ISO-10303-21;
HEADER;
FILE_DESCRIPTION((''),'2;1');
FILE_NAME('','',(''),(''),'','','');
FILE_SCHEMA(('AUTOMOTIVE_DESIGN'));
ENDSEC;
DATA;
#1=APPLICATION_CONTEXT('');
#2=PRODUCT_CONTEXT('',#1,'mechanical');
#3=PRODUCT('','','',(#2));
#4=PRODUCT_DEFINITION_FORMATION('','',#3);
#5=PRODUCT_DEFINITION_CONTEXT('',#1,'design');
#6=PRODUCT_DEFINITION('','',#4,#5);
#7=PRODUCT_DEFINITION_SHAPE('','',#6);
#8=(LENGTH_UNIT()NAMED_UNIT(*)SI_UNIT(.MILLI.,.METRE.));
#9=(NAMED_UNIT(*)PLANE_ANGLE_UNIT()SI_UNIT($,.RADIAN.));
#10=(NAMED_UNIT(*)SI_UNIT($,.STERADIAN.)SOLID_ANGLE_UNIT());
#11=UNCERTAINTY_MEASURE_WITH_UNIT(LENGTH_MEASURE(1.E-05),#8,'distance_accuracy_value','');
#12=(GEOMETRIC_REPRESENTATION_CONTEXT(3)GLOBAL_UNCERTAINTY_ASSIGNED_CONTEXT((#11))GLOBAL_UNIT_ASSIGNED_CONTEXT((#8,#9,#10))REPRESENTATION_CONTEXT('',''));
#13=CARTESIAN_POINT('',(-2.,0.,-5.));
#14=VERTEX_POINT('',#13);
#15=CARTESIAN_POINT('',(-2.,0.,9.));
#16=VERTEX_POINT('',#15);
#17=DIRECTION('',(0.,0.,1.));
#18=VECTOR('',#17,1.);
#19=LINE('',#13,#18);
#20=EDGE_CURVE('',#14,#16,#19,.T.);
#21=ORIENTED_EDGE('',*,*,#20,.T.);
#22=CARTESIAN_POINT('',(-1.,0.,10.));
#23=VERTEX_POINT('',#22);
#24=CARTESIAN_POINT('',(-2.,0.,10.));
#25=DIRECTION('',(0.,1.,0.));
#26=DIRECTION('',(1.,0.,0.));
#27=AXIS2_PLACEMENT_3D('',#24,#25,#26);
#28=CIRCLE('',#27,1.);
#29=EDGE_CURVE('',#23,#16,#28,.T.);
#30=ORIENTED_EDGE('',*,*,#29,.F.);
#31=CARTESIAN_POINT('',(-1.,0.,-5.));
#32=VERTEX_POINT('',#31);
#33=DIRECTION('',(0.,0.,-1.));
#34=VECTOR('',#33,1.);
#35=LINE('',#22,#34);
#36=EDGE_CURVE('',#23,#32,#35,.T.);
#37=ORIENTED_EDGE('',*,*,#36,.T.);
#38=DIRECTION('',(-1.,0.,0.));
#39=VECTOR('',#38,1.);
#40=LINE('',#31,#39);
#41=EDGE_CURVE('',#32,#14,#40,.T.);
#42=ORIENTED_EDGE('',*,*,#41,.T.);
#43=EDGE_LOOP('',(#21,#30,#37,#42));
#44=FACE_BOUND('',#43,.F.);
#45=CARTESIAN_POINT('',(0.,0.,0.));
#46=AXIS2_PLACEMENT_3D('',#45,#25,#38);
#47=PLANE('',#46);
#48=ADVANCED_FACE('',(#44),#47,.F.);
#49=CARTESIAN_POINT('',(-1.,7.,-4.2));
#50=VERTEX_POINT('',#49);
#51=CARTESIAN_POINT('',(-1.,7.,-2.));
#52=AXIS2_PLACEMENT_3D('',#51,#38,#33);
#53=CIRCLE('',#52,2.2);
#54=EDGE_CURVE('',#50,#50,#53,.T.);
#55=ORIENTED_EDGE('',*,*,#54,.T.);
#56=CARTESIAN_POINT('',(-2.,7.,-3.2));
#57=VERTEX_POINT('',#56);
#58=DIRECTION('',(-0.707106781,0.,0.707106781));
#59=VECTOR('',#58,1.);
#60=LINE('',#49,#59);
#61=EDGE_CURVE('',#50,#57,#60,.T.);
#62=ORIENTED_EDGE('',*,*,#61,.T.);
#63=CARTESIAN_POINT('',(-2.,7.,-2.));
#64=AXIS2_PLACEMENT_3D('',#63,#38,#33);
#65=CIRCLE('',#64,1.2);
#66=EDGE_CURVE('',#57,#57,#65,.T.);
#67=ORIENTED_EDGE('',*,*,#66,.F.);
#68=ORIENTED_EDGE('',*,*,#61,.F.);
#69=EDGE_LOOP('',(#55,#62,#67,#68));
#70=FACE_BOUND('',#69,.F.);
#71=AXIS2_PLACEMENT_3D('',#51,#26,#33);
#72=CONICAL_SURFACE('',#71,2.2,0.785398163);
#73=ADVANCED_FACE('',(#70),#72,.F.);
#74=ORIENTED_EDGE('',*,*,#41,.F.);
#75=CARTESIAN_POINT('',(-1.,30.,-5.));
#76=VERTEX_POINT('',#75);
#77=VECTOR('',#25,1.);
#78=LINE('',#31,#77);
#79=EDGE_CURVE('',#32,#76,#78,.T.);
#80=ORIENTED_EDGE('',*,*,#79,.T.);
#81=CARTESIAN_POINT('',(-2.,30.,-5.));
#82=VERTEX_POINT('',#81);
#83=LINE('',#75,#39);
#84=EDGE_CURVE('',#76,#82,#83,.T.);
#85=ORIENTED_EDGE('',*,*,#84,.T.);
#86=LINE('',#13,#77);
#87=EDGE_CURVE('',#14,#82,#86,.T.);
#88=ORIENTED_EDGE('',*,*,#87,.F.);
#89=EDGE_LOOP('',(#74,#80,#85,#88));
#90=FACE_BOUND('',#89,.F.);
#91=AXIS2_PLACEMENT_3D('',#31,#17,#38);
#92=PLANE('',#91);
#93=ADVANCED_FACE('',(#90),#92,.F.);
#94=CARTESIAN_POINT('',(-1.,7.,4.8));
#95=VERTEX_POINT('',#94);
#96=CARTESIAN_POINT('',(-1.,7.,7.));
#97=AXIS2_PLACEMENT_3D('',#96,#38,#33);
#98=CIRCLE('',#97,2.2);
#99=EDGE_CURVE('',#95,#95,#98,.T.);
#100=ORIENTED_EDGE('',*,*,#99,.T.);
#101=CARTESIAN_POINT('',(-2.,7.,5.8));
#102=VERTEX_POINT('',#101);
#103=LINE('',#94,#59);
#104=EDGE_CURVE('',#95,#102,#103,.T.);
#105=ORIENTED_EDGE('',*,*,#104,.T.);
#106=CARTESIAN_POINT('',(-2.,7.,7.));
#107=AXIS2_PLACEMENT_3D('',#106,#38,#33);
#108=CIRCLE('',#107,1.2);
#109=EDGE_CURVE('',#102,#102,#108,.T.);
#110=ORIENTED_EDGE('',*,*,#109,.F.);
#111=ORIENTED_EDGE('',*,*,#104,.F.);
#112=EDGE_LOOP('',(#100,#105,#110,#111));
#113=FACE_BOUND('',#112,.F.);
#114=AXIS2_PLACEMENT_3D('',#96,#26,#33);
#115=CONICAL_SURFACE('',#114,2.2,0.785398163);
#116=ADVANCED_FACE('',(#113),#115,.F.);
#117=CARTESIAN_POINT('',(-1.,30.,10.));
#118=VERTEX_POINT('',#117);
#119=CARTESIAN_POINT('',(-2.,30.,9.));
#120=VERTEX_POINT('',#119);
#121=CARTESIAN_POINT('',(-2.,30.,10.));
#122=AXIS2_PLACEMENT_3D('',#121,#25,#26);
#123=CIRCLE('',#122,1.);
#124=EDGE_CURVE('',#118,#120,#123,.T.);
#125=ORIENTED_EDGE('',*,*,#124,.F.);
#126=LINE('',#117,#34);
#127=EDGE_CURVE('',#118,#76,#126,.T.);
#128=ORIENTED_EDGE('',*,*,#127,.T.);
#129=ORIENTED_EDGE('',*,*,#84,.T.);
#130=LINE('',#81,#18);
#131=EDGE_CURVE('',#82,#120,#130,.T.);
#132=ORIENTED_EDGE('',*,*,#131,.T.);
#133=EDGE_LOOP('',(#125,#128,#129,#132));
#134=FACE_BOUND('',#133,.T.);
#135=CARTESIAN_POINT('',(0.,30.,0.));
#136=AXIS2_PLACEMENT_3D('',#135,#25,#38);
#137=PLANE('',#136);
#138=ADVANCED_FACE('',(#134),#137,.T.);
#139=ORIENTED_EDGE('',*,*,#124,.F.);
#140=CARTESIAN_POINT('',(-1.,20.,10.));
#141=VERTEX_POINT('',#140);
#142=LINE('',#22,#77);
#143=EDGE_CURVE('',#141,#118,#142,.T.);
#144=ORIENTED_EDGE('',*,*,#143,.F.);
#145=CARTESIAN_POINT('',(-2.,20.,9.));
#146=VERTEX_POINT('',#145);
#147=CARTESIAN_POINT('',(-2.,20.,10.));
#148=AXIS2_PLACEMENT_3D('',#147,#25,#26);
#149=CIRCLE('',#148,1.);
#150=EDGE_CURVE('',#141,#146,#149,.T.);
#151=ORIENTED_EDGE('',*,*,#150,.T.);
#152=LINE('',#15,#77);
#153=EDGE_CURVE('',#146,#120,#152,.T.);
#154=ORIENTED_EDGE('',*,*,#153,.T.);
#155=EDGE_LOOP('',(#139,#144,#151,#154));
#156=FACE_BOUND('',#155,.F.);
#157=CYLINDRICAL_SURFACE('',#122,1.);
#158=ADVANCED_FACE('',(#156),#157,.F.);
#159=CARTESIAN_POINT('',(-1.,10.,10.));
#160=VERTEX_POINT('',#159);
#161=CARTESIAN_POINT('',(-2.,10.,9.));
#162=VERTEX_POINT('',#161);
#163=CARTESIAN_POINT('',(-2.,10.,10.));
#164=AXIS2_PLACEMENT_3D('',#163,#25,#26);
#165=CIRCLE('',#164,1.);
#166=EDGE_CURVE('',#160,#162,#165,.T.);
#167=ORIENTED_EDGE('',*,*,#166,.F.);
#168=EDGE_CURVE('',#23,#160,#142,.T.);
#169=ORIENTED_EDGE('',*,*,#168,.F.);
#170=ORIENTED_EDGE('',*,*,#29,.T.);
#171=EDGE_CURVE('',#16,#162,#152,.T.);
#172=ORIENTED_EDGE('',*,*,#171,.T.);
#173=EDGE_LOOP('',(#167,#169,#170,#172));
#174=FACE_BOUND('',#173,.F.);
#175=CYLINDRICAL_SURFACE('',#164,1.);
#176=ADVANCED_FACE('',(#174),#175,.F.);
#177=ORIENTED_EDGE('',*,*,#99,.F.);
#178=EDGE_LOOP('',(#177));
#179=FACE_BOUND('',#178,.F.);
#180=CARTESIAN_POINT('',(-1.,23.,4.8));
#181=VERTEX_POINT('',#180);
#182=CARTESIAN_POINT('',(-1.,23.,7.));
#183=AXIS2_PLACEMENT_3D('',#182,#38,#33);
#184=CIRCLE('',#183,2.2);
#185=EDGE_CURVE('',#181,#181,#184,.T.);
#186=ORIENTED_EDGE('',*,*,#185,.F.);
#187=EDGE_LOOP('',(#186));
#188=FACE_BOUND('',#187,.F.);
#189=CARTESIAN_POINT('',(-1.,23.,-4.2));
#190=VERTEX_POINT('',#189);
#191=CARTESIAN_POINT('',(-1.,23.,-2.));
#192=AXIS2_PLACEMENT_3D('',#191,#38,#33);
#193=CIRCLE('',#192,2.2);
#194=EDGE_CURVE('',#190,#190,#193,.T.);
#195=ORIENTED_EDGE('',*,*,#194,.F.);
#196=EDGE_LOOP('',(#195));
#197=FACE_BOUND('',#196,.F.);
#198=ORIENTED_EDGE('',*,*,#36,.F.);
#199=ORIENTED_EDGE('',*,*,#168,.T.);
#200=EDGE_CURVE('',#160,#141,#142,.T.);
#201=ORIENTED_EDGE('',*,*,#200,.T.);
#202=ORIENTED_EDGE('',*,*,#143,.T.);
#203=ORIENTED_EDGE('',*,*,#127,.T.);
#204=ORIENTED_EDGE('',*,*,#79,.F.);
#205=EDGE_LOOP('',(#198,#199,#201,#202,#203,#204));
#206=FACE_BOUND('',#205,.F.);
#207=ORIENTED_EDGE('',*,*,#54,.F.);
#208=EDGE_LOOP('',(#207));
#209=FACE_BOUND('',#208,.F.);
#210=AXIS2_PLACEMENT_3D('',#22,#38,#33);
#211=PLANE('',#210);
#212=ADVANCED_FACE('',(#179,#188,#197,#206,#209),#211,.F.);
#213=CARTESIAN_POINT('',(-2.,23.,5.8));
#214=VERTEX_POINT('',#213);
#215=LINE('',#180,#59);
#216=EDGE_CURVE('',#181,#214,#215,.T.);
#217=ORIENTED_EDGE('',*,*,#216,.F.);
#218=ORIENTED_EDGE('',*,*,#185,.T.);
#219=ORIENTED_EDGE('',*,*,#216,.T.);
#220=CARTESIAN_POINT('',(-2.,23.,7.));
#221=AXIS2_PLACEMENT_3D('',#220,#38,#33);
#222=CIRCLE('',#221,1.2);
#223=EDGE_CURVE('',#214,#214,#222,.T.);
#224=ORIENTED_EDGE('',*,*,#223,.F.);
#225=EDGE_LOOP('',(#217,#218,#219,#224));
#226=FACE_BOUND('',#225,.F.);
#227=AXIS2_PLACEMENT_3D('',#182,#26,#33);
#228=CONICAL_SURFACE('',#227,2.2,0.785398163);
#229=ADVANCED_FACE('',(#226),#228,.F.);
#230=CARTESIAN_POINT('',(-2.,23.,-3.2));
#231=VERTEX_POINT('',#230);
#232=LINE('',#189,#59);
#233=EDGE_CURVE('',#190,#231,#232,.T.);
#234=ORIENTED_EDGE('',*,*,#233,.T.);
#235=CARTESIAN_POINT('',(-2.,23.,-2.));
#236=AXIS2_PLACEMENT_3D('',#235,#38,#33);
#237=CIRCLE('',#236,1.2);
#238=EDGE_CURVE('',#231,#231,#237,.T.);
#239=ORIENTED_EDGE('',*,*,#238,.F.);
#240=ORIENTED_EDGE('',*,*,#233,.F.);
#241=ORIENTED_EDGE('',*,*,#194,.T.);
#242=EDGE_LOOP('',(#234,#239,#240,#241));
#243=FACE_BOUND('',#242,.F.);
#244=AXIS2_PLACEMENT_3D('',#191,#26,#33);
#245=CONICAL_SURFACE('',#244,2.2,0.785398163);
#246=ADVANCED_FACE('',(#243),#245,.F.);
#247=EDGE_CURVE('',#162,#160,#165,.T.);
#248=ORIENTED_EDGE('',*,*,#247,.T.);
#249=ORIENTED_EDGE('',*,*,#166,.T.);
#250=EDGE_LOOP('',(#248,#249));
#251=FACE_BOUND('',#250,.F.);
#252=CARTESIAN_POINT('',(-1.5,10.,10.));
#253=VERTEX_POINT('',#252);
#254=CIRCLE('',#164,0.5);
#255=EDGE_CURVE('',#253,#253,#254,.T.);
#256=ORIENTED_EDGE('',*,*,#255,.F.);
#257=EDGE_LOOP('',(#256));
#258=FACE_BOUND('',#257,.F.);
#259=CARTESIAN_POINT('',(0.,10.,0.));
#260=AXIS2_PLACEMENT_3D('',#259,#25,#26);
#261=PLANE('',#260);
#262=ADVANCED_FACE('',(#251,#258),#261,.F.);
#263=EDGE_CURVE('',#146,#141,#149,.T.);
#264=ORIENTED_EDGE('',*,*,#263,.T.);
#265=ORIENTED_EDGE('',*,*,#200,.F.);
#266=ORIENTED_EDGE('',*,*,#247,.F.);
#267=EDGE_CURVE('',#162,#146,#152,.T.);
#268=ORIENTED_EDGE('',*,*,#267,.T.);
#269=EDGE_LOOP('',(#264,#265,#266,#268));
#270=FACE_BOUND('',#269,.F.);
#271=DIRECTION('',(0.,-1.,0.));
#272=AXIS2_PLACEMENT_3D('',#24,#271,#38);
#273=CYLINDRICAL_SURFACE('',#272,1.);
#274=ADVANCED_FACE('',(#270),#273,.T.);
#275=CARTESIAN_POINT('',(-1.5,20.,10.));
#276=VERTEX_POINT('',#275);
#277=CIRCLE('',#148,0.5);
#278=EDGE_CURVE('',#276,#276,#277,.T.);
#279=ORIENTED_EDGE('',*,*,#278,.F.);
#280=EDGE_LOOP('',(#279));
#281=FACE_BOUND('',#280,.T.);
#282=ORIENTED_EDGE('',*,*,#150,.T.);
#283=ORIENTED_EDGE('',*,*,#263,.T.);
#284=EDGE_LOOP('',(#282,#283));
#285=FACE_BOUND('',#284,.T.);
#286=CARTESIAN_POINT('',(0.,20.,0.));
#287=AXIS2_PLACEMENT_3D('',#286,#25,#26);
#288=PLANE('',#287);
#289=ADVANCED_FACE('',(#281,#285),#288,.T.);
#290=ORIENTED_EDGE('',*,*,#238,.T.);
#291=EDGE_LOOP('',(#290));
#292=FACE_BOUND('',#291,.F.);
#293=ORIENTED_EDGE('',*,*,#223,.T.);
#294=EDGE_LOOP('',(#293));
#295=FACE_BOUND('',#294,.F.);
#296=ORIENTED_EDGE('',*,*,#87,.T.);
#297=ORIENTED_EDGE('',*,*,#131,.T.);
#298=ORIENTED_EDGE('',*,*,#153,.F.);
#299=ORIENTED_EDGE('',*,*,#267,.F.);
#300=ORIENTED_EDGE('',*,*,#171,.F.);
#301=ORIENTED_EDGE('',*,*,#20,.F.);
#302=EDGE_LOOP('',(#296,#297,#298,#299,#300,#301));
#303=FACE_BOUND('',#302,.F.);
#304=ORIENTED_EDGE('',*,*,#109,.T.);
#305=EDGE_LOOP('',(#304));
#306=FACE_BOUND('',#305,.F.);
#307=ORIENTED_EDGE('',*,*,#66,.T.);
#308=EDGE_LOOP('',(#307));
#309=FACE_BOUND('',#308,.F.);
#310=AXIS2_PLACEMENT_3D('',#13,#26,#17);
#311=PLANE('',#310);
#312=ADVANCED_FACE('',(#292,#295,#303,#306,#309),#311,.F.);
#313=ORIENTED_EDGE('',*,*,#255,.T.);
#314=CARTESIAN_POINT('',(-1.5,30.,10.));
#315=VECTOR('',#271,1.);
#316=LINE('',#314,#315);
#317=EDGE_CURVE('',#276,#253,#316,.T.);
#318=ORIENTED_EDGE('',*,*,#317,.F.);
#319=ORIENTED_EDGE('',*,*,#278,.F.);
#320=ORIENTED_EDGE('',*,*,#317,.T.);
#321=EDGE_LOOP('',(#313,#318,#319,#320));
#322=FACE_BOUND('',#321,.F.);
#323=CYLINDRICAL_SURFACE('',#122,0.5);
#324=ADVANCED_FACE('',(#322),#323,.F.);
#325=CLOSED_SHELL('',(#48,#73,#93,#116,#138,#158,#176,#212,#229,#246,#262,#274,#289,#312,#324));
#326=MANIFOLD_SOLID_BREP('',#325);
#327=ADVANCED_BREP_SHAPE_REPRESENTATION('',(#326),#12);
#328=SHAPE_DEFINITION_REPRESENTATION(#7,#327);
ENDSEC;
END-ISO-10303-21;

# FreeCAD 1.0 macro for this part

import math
import FreeCAD as App
import Part
import Sketcher

V = App.Vector
Q = App.Units.Quantity

doc = App.newDocument("Part")
params = doc.addObject("Spreadsheet::Sheet", "Params")
for row, (alias, value) in enumerate([
    ("sketch1_radius", "1 mm"),
    ("sketch1_height", "15 mm"),
    ("pad1_length", "30 mm"),
    ("sketch2_diameter", "1 mm"),
    ("pocket1_length", "30 mm"),
    ("sketch3_diameter", "2 mm"),
    ("sketch3_diameter2", "1 mm"),
    ("pocket2_length", "10 mm"),
    ("linearpattern_pitch", "20 mm"),
    ("sketch4_diameter", "2.4 mm"),
    ("hole_diameter", "2.4 mm"),
    ("hole_csink_diameter", "4.4 mm"),
    ("sketch5_diameter", "2.4 mm"),
    ("hole2_diameter", "2.4 mm"),
    ("hole2_csink_diameter", "4.4 mm"),
    ("sketch6_diameter", "2.4 mm"),
    ("hole3_diameter", "2.4 mm"),
    ("hole3_csink_diameter", "4.4 mm"),
    ("sketch7_diameter", "2.4 mm"),
    ("hole4_diameter", "2.4 mm"),
    ("hole4_csink_diameter", "4.4 mm"),
], start=1):
    params.set(f"A{row}", alias)
    params.set(f"B{row}", "=" + value)
    params.setAlias(f"B{row}", alias)

body = doc.addObject("PartDesign::Body", "Body")

# Sketch on XZ plane
sketch1 = body.newObject("Sketcher::SketchObject", "Sketch")
sketch1.AttachmentSupport = (doc.getObject("XZ_Plane"), [""])
sketch1.MapMode = "FlatFace"
sketch1.addGeometry(Part.ArcOfCircle(Part.Circle(V(-2, 10, 0), V(0, 0, 1), 1), math.radians(0), math.radians(270)), False)
sketch1.addGeometry(Part.LineSegment(V(-1, 10, 0), V(-1, -5, 0)), False)
sketch1.addGeometry(Part.LineSegment(V(-1, -5, 0), V(-2, -5, 0)), False)
sketch1.addGeometry(Part.LineSegment(V(-2, -5, 0), V(-2, 9, 0)), False)
sketch1.addConstraint(Sketcher.Constraint("Tangent", 0, 1, 1, 1))
sketch1.addConstraint(Sketcher.Constraint("Coincident", 1, 2, 2, 1))
sketch1.addConstraint(Sketcher.Constraint("Coincident", 2, 2, 3, 1))
sketch1.addConstraint(Sketcher.Constraint("Coincident", 3, 2, 0, 2))
sketch1.addConstraint(Sketcher.Constraint("Vertical", 1))
sketch1.addConstraint(Sketcher.Constraint("Horizontal", 2))
sketch1.addConstraint(Sketcher.Constraint("Vertical", 3))
sketch1.addConstraint(Sketcher.Constraint("Vertical", 0, 3, 2, 2))
sketch1.addConstraint(Sketcher.Constraint("Radius", 0, Q("1 mm")))
sketch1.addConstraint(Sketcher.Constraint("DistanceY", 1, 2, 1, 1, Q("15 mm")))
sketch1.addConstraint(Sketcher.Constraint("DistanceX", 0, 3, -1, 1, Q("2 mm")))
sketch1.addConstraint(Sketcher.Constraint("DistanceY", -1, 1, 0, 3, Q("10 mm")))
sketch1.setExpression("Constraints[8]", "Params.sketch1_radius")
sketch1.setExpression("Constraints[9]", "Params.sketch1_height")
pad1 = body.newObject("PartDesign::Pad", "Pad")
pad1.Profile = sketch1
pad1.setExpression("Length", "Params.pad1_length")
pad1.Reversed = True

# Sketch on XZ plane
sketch2 = body.newObject("Sketcher::SketchObject", "Sketch001")
sketch2.AttachmentSupport = (doc.getObject("XZ_Plane"), [""])
sketch2.MapMode = "FlatFace"
sketch2.AttachmentOffset = App.Placement(V(0, 0, -30), App.Rotation())
sketch2.addGeometry(Part.Circle(V(-2, 10, 0), V(0, 0, 1), 0.5), False)
sketch2.addConstraint(Sketcher.Constraint("Diameter", 0, Q("1 mm")))
sketch2.addConstraint(Sketcher.Constraint("DistanceX", 0, 3, -1, 1, Q("2 mm")))
sketch2.addConstraint(Sketcher.Constraint("DistanceY", -1, 1, 0, 3, Q("10 mm")))
sketch2.setExpression("Constraints[0]", "Params.sketch2_diameter")
pocket1 = body.newObject("PartDesign::Pocket", "Pocket")
pocket1.Profile = sketch2
pocket1.setExpression("Length", "Params.pocket1_length")
pocket1.Reversed = True

# Sketch on XZ plane
sketch3 = body.newObject("Sketcher::SketchObject", "Sketch002")
sketch3.AttachmentSupport = (doc.getObject("XZ_Plane"), [""])
sketch3.MapMode = "FlatFace"
sketch3.AttachmentOffset = App.Placement(V(0, 0, -30), App.Rotation())
sketch3.addGeometry(Part.Circle(V(-2, 10, 0), V(0, 0, 1), 1), False)
sketch3.addGeometry(Part.Circle(V(-2, 10, 0), V(0, 0, 1), 0.5), False)
sketch3.addConstraint(Sketcher.Constraint("Coincident", 1, 3, 0, 3))
sketch3.addConstraint(Sketcher.Constraint("Diameter", 0, Q("2 mm")))
sketch3.addConstraint(Sketcher.Constraint("Diameter", 1, Q("1 mm")))
sketch3.addConstraint(Sketcher.Constraint("DistanceX", 0, 3, -1, 1, Q("2 mm")))
sketch3.addConstraint(Sketcher.Constraint("DistanceY", -1, 1, 0, 3, Q("10 mm")))
sketch3.setExpression("Constraints[1]", "Params.sketch3_diameter")
sketch3.setExpression("Constraints[2]", "Params.sketch3_diameter2")
pocket2 = body.newObject("PartDesign::Pocket", "Pocket001")
pocket2.Profile = sketch3
pocket2.setExpression("Length", "Params.pocket2_length")
pocket2.Reversed = True
doc.recompute()

linearpattern = body.newObject("PartDesign::LinearPattern", "LinearPattern")
linearpattern.Originals = [pocket2]
linearpattern.Direction = (doc.getObject("Y_Axis"), [""])
linearpattern.Mode = "offset"
linearpattern.setExpression("Offset", "Params.linearpattern_pitch")
linearpattern.Occurrences = 2
linearpattern.Reversed = True
body.Tip = linearpattern

# Sketch on YZ plane
sketch4 = body.newObject("Sketcher::SketchObject", "Sketch003")
sketch4.AttachmentSupport = (doc.getObject("YZ_Plane"), [""])
sketch4.MapMode = "FlatFace"
sketch4.AttachmentOffset = App.Placement(V(0, 0, -1), App.Rotation())
sketch4.addGeometry(Part.Circle(V(7, -2, 0), V(0, 0, 1), 1.2), False)
sketch4.addConstraint(Sketcher.Constraint("Diameter", 0, Q("2.4 mm")))
sketch4.addConstraint(Sketcher.Constraint("DistanceX", -1, 1, 0, 3, Q("7 mm")))
sketch4.addConstraint(Sketcher.Constraint("DistanceY", 0, 3, -1, 1, Q("2 mm")))
sketch4.setExpression("Constraints[0]", "Params.sketch4_diameter")
doc.recompute()
hole = body.newObject("PartDesign::Hole", "Hole")
hole.Profile = sketch4
hole.ThreadType = "None"
hole.setExpression("Diameter", "Params.hole_diameter")
hole.DepthType = "ThroughAll"
hole.HoleCutType = "Countersink"
hole.setExpression("HoleCutDiameter", "Params.hole_csink_diameter")
hole.HoleCutCountersinkAngle = 90

# Sketch on YZ plane
sketch5 = body.newObject("Sketcher::SketchObject", "Sketch004")
sketch5.AttachmentSupport = (doc.getObject("YZ_Plane"), [""])
sketch5.MapMode = "FlatFace"
sketch5.AttachmentOffset = App.Placement(V(0, 0, -1), App.Rotation())
sketch5.addGeometry(Part.Circle(V(7, 7, 0), V(0, 0, 1), 1.2), False)
sketch5.addConstraint(Sketcher.Constraint("Diameter", 0, Q("2.4 mm")))
sketch5.addConstraint(Sketcher.Constraint("DistanceX", -1, 1, 0, 3, Q("7 mm")))
sketch5.addConstraint(Sketcher.Constraint("DistanceY", -1, 1, 0, 3, Q("7 mm")))
sketch5.setExpression("Constraints[0]", "Params.sketch5_diameter")
doc.recompute()
hole2 = body.newObject("PartDesign::Hole", "Hole001")
hole2.Profile = sketch5
hole2.ThreadType = "None"
hole2.setExpression("Diameter", "Params.hole2_diameter")
hole2.DepthType = "ThroughAll"
hole2.HoleCutType = "Countersink"
hole2.setExpression("HoleCutDiameter", "Params.hole2_csink_diameter")
hole2.HoleCutCountersinkAngle = 90

# Sketch on YZ plane
sketch6 = body.newObject("Sketcher::SketchObject", "Sketch005")
sketch6.AttachmentSupport = (doc.getObject("YZ_Plane"), [""])
sketch6.MapMode = "FlatFace"
sketch6.AttachmentOffset = App.Placement(V(0, 0, -1), App.Rotation())
sketch6.addGeometry(Part.Circle(V(23, 7, 0), V(0, 0, 1), 1.2), False)
sketch6.addConstraint(Sketcher.Constraint("Diameter", 0, Q("2.4 mm")))
sketch6.addConstraint(Sketcher.Constraint("DistanceX", -1, 1, 0, 3, Q("23 mm")))
sketch6.addConstraint(Sketcher.Constraint("DistanceY", -1, 1, 0, 3, Q("7 mm")))
sketch6.setExpression("Constraints[0]", "Params.sketch6_diameter")
doc.recompute()
hole3 = body.newObject("PartDesign::Hole", "Hole002")
hole3.Profile = sketch6
hole3.ThreadType = "None"
hole3.setExpression("Diameter", "Params.hole3_diameter")
hole3.DepthType = "ThroughAll"
hole3.HoleCutType = "Countersink"
hole3.setExpression("HoleCutDiameter", "Params.hole3_csink_diameter")
hole3.HoleCutCountersinkAngle = 90

# Sketch on YZ plane
sketch7 = body.newObject("Sketcher::SketchObject", "Sketch006")
sketch7.AttachmentSupport = (doc.getObject("YZ_Plane"), [""])
sketch7.MapMode = "FlatFace"
sketch7.AttachmentOffset = App.Placement(V(0, 0, -1), App.Rotation())
sketch7.addGeometry(Part.Circle(V(23, -2, 0), V(0, 0, 1), 1.2), False)
sketch7.addConstraint(Sketcher.Constraint("Diameter", 0, Q("2.4 mm")))
sketch7.addConstraint(Sketcher.Constraint("DistanceX", -1, 1, 0, 3, Q("23 mm")))
sketch7.addConstraint(Sketcher.Constraint("DistanceY", 0, 3, -1, 1, Q("2 mm")))
sketch7.setExpression("Constraints[0]", "Params.sketch7_diameter")
doc.recompute()
hole4 = body.newObject("PartDesign::Hole", "Hole003")
hole4.Profile = sketch7
hole4.ThreadType = "None"
hole4.setExpression("Diameter", "Params.hole4_diameter")
hole4.DepthType = "ThroughAll"
hole4.HoleCutType = "Countersink"
hole4.setExpression("HoleCutDiameter", "Params.hole4_csink_diameter")
hole4.HoleCutCountersinkAngle = 90

doc.recompute()
